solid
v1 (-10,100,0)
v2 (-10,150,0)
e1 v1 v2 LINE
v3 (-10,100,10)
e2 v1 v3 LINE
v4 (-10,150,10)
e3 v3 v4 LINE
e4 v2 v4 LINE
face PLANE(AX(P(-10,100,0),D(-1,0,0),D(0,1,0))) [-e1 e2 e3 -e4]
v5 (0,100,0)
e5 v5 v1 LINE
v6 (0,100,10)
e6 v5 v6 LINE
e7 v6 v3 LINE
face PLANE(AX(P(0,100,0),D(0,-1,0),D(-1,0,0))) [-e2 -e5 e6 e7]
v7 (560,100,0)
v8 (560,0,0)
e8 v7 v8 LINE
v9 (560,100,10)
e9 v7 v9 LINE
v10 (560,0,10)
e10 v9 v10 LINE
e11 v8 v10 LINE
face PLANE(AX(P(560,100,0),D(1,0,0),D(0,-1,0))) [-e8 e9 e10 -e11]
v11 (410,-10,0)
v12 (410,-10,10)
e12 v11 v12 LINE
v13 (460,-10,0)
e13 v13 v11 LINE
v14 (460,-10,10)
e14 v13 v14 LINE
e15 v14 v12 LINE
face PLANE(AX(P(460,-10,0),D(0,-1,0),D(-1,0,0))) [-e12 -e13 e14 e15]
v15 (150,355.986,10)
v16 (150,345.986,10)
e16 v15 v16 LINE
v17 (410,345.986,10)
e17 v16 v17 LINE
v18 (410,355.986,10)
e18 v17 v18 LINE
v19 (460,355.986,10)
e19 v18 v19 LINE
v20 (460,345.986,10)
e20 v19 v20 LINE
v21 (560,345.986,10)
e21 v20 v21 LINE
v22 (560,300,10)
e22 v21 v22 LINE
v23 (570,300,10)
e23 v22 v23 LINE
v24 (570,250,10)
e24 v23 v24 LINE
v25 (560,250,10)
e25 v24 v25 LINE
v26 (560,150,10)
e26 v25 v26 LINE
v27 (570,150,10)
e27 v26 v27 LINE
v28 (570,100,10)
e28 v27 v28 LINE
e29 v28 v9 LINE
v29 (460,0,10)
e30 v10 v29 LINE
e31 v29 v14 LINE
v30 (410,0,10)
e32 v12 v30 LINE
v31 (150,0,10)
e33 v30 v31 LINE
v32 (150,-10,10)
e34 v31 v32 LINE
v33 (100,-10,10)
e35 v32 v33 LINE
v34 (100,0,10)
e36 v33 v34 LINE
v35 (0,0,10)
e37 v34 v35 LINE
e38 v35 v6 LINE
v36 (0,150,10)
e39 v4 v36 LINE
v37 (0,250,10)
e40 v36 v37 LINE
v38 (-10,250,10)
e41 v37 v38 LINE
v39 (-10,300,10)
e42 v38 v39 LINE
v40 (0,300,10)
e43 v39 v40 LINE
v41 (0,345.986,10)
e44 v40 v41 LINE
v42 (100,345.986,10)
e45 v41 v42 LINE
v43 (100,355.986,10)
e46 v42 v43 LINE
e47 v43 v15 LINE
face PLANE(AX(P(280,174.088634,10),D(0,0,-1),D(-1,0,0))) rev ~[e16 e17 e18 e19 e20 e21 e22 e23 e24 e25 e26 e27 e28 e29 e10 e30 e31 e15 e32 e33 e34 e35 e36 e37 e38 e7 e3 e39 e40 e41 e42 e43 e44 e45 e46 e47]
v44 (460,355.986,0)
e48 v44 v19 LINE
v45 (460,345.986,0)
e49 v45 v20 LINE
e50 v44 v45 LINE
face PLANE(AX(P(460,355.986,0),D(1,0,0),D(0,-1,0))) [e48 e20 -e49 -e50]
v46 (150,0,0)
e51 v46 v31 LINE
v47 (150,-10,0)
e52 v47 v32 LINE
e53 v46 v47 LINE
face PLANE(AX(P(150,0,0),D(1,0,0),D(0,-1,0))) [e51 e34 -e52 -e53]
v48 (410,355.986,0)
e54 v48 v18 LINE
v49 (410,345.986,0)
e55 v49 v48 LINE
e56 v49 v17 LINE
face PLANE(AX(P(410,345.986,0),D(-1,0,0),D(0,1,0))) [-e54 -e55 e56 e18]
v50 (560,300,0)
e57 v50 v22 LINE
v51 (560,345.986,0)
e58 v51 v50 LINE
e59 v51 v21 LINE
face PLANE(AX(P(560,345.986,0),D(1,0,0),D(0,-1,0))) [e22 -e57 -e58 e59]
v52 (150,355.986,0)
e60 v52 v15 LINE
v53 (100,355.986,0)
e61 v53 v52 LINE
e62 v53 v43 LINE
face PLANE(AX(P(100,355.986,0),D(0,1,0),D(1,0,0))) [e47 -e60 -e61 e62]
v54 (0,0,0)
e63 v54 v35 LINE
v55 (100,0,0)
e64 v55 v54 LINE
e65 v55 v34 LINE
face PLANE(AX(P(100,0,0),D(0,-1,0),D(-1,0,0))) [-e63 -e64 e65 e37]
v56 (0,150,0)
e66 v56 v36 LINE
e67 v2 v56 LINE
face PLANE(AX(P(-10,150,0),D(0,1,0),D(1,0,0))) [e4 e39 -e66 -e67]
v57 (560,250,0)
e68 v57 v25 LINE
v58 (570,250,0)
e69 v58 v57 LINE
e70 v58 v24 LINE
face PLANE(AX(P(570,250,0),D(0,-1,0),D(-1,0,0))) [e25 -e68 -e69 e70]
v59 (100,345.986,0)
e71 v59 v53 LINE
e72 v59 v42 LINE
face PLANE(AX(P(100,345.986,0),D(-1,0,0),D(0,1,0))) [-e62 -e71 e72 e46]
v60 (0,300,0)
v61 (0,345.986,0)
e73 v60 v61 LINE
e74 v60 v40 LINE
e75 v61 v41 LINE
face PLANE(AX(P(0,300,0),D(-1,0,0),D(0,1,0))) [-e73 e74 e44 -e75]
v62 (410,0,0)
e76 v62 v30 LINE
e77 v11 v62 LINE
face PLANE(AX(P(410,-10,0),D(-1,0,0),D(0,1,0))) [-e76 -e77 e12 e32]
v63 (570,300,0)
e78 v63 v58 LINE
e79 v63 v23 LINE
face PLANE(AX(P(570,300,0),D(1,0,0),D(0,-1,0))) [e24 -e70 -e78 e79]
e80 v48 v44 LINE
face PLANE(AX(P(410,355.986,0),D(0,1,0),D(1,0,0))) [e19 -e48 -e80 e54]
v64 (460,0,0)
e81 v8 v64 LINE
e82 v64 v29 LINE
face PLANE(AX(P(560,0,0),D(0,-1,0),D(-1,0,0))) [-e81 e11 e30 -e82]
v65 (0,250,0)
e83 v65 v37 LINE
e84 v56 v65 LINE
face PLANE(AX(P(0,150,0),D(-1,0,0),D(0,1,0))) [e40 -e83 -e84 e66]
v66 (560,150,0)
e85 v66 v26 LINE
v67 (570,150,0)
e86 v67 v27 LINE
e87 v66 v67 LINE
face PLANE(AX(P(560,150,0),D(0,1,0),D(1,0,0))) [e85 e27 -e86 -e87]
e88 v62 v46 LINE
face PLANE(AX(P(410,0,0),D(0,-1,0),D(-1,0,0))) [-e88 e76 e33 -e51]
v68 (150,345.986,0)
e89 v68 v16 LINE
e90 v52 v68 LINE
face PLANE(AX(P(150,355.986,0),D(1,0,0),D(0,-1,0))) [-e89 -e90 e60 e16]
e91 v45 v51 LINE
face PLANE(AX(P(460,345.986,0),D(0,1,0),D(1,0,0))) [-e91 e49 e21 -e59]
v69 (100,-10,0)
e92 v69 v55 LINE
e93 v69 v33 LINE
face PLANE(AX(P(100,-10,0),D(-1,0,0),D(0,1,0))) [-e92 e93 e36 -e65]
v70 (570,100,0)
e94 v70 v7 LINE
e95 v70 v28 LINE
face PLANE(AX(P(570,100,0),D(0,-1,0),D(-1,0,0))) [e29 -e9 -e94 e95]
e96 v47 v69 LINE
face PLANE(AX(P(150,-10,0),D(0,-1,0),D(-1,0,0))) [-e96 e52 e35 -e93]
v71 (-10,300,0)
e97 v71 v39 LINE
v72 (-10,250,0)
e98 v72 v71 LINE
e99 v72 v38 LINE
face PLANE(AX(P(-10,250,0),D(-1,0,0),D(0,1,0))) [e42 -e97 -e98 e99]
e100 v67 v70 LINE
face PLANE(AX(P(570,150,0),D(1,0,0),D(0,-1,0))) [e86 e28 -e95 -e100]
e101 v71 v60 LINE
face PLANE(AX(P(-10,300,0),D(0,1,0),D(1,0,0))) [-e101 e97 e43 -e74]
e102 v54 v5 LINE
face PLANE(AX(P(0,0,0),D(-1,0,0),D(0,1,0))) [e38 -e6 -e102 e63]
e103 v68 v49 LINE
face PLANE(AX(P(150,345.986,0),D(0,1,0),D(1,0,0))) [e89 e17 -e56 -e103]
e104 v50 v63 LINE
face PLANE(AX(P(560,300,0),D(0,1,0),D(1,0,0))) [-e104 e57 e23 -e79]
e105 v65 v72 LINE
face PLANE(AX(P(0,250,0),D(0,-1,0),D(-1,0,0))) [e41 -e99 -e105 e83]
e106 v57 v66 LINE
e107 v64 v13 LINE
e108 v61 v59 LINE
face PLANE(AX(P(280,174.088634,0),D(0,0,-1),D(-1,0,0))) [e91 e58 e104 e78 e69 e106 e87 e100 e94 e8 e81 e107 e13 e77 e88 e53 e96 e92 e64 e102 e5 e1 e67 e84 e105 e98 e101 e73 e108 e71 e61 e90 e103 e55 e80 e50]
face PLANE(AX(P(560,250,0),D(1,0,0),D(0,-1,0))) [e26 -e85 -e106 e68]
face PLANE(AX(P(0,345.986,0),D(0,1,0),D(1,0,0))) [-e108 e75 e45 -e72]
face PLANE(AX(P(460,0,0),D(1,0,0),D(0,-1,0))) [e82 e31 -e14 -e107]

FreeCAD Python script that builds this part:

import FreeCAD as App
import Part
import Sketcher

V = App.Vector

doc = App.newDocument("Part")
body = doc.addObject("PartDesign::Body", "Body")

# Sketch on XY plane
sketch1 = body.newObject("Sketcher::SketchObject", "Sketch")
sketch1.AttachmentSupport = (doc.getObject("XY_Plane"), [""])
sketch1.MapMode = "FlatFace"
sketch1.addGeometry([
    Part.LineSegment(V(570, 300, 0), V(560, 300, 0)),  # 0
    Part.LineSegment(V(560, 300, 0), V(560, 346, 0)),  # 1
    Part.LineSegment(V(560, 346, 0), V(460, 346, 0)),  # 2
    Part.LineSegment(V(460, 346, 0), V(460, 356, 0)),  # 3
    Part.LineSegment(V(460, 356, 0), V(410, 356, 0)),  # 4
    Part.LineSegment(V(410, 356, 0), V(410, 346, 0)),  # 5
    Part.LineSegment(V(410, 346, 0), V(150, 346, 0)),  # 6
    Part.LineSegment(V(150, 346, 0), V(150, 356, 0)),  # 7
    Part.LineSegment(V(150, 356, 0), V(100, 356, 0)),  # 8
    Part.LineSegment(V(100, 356, 0), V(100, 346, 0)),  # 9
    Part.LineSegment(V(100, 346, 0), V(0, 346, 0)),  # 10
    Part.LineSegment(V(0, 346, 0), V(0, 300, 0)),  # 11
    Part.LineSegment(V(0, 300, 0), V(-10, 300, 0)),  # 12
    Part.LineSegment(V(-10, 300, 0), V(-10, 250, 0)),  # 13
    Part.LineSegment(V(-10, 250, 0), V(0, 250, 0)),  # 14
    Part.LineSegment(V(0, 250, 0), V(0, 150, 0)),  # 15
    Part.LineSegment(V(0, 150, 0), V(-10, 150, 0)),  # 16
    Part.LineSegment(V(-10, 150, 0), V(-10, 100, 0)),  # 17
    Part.LineSegment(V(-10, 100, 0), V(0, 100, 0)),  # 18
    Part.LineSegment(V(0, 100, 0), V(0, 0, 0)),  # 19
    Part.LineSegment(V(0, 0, 0), V(100, 0, 0)),  # 20
    Part.LineSegment(V(100, 0, 0), V(100, -10, 0)),  # 21
    Part.LineSegment(V(100, -10, 0), V(150, -10, 0)),  # 22
    Part.LineSegment(V(150, -10, 0), V(150, 0, 0)),  # 23
    Part.LineSegment(V(150, 0, 0), V(410, 0, 0)),  # 24
    Part.LineSegment(V(410, 0, 0), V(410, -10, 0)),  # 25
    Part.LineSegment(V(410, -10, 0), V(460, -10, 0)),  # 26
    Part.LineSegment(V(460, -10, 0), V(460, 0, 0)),  # 27
    Part.LineSegment(V(460, 0, 0), V(560, 0, 0)),  # 28
    Part.LineSegment(V(560, 0, 0), V(560, 100, 0)),  # 29
    Part.LineSegment(V(560, 100, 0), V(570, 100, 0)),  # 30
    Part.LineSegment(V(570, 100, 0), V(570, 150, 0)),  # 31
    Part.LineSegment(V(570, 150, 0), V(560, 150, 0)),  # 32
    Part.LineSegment(V(560, 150, 0), V(560, 250, 0)),  # 33
    Part.LineSegment(V(560, 250, 0), V(570, 250, 0)),  # 34
    Part.LineSegment(V(570, 250, 0), V(570, 300, 0)),  # 35
], False)
sketch1.addConstraint([
    Sketcher.Constraint("Coincident", 0, 2, 1, 1),
    Sketcher.Constraint("Coincident", 1, 2, 2, 1),
    Sketcher.Constraint("Coincident", 2, 2, 3, 1),
    Sketcher.Constraint("Coincident", 3, 2, 4, 1),
    Sketcher.Constraint("Coincident", 4, 2, 5, 1),
    Sketcher.Constraint("Coincident", 5, 2, 6, 1),
    Sketcher.Constraint("Coincident", 6, 2, 7, 1),
    Sketcher.Constraint("Coincident", 7, 2, 8, 1),
    Sketcher.Constraint("Coincident", 8, 2, 9, 1),
    Sketcher.Constraint("Coincident", 9, 2, 10, 1),
    Sketcher.Constraint("Coincident", 10, 2, 11, 1),
    Sketcher.Constraint("Coincident", 11, 2, 12, 1),
    Sketcher.Constraint("Coincident", 12, 2, 13, 1),
    Sketcher.Constraint("Coincident", 13, 2, 14, 1),
    Sketcher.Constraint("Coincident", 14, 2, 15, 1),
    Sketcher.Constraint("Coincident", 15, 2, 16, 1),
    Sketcher.Constraint("Coincident", 16, 2, 17, 1),
    Sketcher.Constraint("Coincident", 17, 2, 18, 1),
    Sketcher.Constraint("Coincident", 18, 2, 19, 1),
    Sketcher.Constraint("Coincident", 19, 2, 20, 1),
    Sketcher.Constraint("Coincident", 20, 2, 21, 1),
    Sketcher.Constraint("Coincident", 21, 2, 22, 1),
    Sketcher.Constraint("Coincident", 22, 2, 23, 1),
    Sketcher.Constraint("Coincident", 23, 2, 24, 1),
    Sketcher.Constraint("Coincident", 24, 2, 25, 1),
    Sketcher.Constraint("Coincident", 25, 2, 26, 1),
    Sketcher.Constraint("Coincident", 26, 2, 27, 1),
    Sketcher.Constraint("Coincident", 27, 2, 28, 1),
    Sketcher.Constraint("Coincident", 28, 2, 29, 1),
    Sketcher.Constraint("Coincident", 29, 2, 30, 1),
    Sketcher.Constraint("Coincident", 30, 2, 31, 1),
    Sketcher.Constraint("Coincident", 31, 2, 32, 1),
    Sketcher.Constraint("Coincident", 32, 2, 33, 1),
    Sketcher.Constraint("Coincident", 33, 2, 34, 1),
    Sketcher.Constraint("Coincident", 34, 2, 35, 1),
    Sketcher.Constraint("Coincident", 35, 2, 0, 1),
    Sketcher.Constraint("Horizontal", 0),
    Sketcher.Constraint("Vertical", 1),
    Sketcher.Constraint("Horizontal", 2),
    Sketcher.Constraint("Vertical", 3),
    Sketcher.Constraint("Horizontal", 4),
    Sketcher.Constraint("Vertical", 5),
    Sketcher.Constraint("Horizontal", 6),
    Sketcher.Constraint("Vertical", 7),
    Sketcher.Constraint("Horizontal", 8),
    Sketcher.Constraint("Vertical", 9),
    Sketcher.Constraint("Horizontal", 10),
    Sketcher.Constraint("Vertical", 11),
    Sketcher.Constraint("Horizontal", 12),
    Sketcher.Constraint("Vertical", 13),
    Sketcher.Constraint("Horizontal", 14),
    Sketcher.Constraint("Vertical", 15),
    Sketcher.Constraint("Horizontal", 16),
    Sketcher.Constraint("Vertical", 17),
    Sketcher.Constraint("Horizontal", 18),
    Sketcher.Constraint("Vertical", 19),
    Sketcher.Constraint("Horizontal", 20),
    Sketcher.Constraint("Vertical", 21),
    Sketcher.Constraint("Horizontal", 22),
    Sketcher.Constraint("Vertical", 23),
    Sketcher.Constraint("Horizontal", 24),
    Sketcher.Constraint("Vertical", 25),
    Sketcher.Constraint("Horizontal", 26),
    Sketcher.Constraint("Vertical", 27),
    Sketcher.Constraint("Horizontal", 28),
    Sketcher.Constraint("Vertical", 29),
    Sketcher.Constraint("Horizontal", 30),
    Sketcher.Constraint("Vertical", 31),
    Sketcher.Constraint("Horizontal", 32),
    Sketcher.Constraint("Vertical", 33),
    Sketcher.Constraint("Horizontal", 34),
    Sketcher.Constraint("Vertical", 35),
    Sketcher.Constraint("Coincident", 19, 2, -1, 1),
    Sketcher.Constraint("PointOnObject", 10, 2, -2),
    Sketcher.Constraint("PointOnObject", 14, 2, -2),
    Sketcher.Constraint("PointOnObject", 23, 2, -1),
    Sketcher.Constraint("PointOnObject", 27, 2, -1),
    Sketcher.Constraint("Horizontal", 2, 2, 5, 2),
    Sketcher.Constraint("Horizontal", 4, 2, 7, 2),
    Sketcher.Constraint("Horizontal", 6, 2, 9, 2),
    Sketcher.Constraint("Horizontal", 0, 2, 11, 2),
    Sketcher.Constraint("Horizontal", 22, 2, 25, 2),
    Sketcher.Constraint("Horizontal", 18, 2, 29, 2),
    Sketcher.Constraint("Horizontal", 16, 2, 31, 2),
    Sketcher.Constraint("Horizontal", 14, 2, 33, 2),
    Sketcher.Constraint("Vertical", 13, 2, 16, 2),
    Sketcher.Constraint("Vertical", 9, 2, 20, 2),
    Sketcher.Constraint("Vertical", 7, 2, 22, 2),
    Sketcher.Constraint("Vertical", 5, 2, 24, 2),
    Sketcher.Constraint("Vertical", 3, 2, 26, 2),
    Sketcher.Constraint("Vertical", 1, 2, 28, 2),
    Sketcher.Constraint("Vertical", 29, 2, 32, 2),
    Sketcher.Constraint("Vertical", 31, 2, 34, 2),
    Sketcher.Constraint("Equal", 4, 8),
    Sketcher.Constraint("Equal", 2, 10),
    Sketcher.Constraint("Equal", 0, 12),
    Sketcher.Constraint("Equal", 34, 3),
    Sketcher.Constraint("Equal", 26, 13),
    Sketcher.Constraint("Equal", 28, 15),
    Sketcher.Constraint("Equal", 13, 17),
    Sketcher.Constraint("Equal", 15, 19),
    Sketcher.Constraint("Equal", 9, 21),
    Sketcher.Constraint("DistanceX", 0, 2, 0, 1, 10.0),
    Sketcher.Constraint("DistanceX", 2, 2, 2, 1, 100.0),
    Sketcher.Constraint("DistanceX", 4, 2, 4, 1, 50.0),
    Sketcher.Constraint("DistanceX", 6, 2, 6, 1, 260.0),
    Sketcher.Constraint("DistanceY", 1, 1, 1, 2, 45.986),
])
pad1 = body.newObject("PartDesign::Pad", "Pad")
pad1.Profile = sketch1
pad1.Length = 10

doc.recompute()
